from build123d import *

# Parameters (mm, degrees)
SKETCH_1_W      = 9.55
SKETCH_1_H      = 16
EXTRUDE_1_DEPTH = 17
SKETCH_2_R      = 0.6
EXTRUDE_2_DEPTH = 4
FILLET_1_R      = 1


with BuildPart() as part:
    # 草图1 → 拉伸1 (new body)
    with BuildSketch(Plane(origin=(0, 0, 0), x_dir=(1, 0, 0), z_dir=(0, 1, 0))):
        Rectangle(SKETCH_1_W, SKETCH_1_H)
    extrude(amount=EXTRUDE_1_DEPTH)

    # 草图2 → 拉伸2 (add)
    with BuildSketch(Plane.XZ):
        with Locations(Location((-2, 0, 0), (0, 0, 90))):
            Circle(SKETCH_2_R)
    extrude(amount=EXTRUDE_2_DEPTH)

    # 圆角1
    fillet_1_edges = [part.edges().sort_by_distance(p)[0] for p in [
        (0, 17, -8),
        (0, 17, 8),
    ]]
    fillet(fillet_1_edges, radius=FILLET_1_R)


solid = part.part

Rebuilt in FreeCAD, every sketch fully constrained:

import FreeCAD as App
import Part
import Sketcher
from FreeCAD import Vector


def edges_at(feature, points):
    """Names of the edges that pass closest to the given points."""
    edges = feature.Shape.Edges
    near = lambda p: min(range(len(edges)), key=lambda i: edges[i].distToShape(Part.Vertex(*p))[0])
    return sorted({f"Edge{near(p) + 1}" for p in points})


def add_polygon(sketch, points):
    """Adds a closed chain of lines whose ends are joined by coincident constraints."""
    first, n = sketch.GeometryCount, len(points)
    for a, b in zip(points, points[1:] + points[:1]):
        sketch.addGeometry(Part.LineSegment(App.Vector(*a, 0), App.Vector(*b, 0)), False)
    for i in range(n):
        sketch.addConstraint(Sketcher.Constraint("Coincident", first + i, 2, first + (i + 1) % n, 1))

doc = App.newDocument("Part")
body = doc.addObject("PartDesign::Body", "Body")

sketch1 = body.newObject("Sketcher::SketchObject", "Sketch")
sketch1.AttachmentSupport = (doc.getObject("XZ_Plane"), [""])
sketch1.MapMode = "FlatFace"
add_polygon(sketch1, [(-5, -8), (-5, 8), (5, 8), (5, -8)])
sketch1.addConstraint(Sketcher.Constraint("Vertical", 0))
sketch1.addConstraint(Sketcher.Constraint("Horizontal", 1))
sketch1.addConstraint(Sketcher.Constraint("Vertical", 2))
sketch1.addConstraint(Sketcher.Constraint("Horizontal", 3))
sketch1.addConstraint(Sketcher.Constraint("Symmetric", 0, 2, 2, 2, -1, 1))
sketch1.addConstraint(Sketcher.Constraint("DistanceY", 0, 1, 0, 2, 16.0))
sketch1.addConstraint(Sketcher.Constraint("DistanceX", 1, 1, 1, 2, 9.55))
pad1 = body.newObject("PartDesign::Pad", "Pad")
pad1.Profile = sketch1
pad1.Length = 17
pad1.Reversed = True

sketch2 = body.newObject("Sketcher::SketchObject", "Sketch001")
sketch2.AttachmentSupport = (doc.getObject("XZ_Plane"), [""])
sketch2.MapMode = "FlatFace"
sketch2.addGeometry(Part.Circle(Vector(-2, 0, 0), Vector(0, 0, 1), 0.6), False)
sketch2.addConstraint(Sketcher.Constraint("PointOnObject", 0, 3, -1))
sketch2.addConstraint(Sketcher.Constraint("Diameter", 0, 1.2))
sketch2.addConstraint(Sketcher.Constraint("DistanceX", 0, 3, -1, 1, 2.0))
pad2 = body.newObject("PartDesign::Pad", "Pad001")
pad2.Profile = sketch2
pad2.Length = 4
doc.recompute()

fillet = body.newObject("PartDesign::Fillet", "Fillet")
fillet.Base = (pad2, edges_at(pad2, [(0, 17, -8), (0, 17, 8)]))
fillet.Radius = 1

doc.recompute()
